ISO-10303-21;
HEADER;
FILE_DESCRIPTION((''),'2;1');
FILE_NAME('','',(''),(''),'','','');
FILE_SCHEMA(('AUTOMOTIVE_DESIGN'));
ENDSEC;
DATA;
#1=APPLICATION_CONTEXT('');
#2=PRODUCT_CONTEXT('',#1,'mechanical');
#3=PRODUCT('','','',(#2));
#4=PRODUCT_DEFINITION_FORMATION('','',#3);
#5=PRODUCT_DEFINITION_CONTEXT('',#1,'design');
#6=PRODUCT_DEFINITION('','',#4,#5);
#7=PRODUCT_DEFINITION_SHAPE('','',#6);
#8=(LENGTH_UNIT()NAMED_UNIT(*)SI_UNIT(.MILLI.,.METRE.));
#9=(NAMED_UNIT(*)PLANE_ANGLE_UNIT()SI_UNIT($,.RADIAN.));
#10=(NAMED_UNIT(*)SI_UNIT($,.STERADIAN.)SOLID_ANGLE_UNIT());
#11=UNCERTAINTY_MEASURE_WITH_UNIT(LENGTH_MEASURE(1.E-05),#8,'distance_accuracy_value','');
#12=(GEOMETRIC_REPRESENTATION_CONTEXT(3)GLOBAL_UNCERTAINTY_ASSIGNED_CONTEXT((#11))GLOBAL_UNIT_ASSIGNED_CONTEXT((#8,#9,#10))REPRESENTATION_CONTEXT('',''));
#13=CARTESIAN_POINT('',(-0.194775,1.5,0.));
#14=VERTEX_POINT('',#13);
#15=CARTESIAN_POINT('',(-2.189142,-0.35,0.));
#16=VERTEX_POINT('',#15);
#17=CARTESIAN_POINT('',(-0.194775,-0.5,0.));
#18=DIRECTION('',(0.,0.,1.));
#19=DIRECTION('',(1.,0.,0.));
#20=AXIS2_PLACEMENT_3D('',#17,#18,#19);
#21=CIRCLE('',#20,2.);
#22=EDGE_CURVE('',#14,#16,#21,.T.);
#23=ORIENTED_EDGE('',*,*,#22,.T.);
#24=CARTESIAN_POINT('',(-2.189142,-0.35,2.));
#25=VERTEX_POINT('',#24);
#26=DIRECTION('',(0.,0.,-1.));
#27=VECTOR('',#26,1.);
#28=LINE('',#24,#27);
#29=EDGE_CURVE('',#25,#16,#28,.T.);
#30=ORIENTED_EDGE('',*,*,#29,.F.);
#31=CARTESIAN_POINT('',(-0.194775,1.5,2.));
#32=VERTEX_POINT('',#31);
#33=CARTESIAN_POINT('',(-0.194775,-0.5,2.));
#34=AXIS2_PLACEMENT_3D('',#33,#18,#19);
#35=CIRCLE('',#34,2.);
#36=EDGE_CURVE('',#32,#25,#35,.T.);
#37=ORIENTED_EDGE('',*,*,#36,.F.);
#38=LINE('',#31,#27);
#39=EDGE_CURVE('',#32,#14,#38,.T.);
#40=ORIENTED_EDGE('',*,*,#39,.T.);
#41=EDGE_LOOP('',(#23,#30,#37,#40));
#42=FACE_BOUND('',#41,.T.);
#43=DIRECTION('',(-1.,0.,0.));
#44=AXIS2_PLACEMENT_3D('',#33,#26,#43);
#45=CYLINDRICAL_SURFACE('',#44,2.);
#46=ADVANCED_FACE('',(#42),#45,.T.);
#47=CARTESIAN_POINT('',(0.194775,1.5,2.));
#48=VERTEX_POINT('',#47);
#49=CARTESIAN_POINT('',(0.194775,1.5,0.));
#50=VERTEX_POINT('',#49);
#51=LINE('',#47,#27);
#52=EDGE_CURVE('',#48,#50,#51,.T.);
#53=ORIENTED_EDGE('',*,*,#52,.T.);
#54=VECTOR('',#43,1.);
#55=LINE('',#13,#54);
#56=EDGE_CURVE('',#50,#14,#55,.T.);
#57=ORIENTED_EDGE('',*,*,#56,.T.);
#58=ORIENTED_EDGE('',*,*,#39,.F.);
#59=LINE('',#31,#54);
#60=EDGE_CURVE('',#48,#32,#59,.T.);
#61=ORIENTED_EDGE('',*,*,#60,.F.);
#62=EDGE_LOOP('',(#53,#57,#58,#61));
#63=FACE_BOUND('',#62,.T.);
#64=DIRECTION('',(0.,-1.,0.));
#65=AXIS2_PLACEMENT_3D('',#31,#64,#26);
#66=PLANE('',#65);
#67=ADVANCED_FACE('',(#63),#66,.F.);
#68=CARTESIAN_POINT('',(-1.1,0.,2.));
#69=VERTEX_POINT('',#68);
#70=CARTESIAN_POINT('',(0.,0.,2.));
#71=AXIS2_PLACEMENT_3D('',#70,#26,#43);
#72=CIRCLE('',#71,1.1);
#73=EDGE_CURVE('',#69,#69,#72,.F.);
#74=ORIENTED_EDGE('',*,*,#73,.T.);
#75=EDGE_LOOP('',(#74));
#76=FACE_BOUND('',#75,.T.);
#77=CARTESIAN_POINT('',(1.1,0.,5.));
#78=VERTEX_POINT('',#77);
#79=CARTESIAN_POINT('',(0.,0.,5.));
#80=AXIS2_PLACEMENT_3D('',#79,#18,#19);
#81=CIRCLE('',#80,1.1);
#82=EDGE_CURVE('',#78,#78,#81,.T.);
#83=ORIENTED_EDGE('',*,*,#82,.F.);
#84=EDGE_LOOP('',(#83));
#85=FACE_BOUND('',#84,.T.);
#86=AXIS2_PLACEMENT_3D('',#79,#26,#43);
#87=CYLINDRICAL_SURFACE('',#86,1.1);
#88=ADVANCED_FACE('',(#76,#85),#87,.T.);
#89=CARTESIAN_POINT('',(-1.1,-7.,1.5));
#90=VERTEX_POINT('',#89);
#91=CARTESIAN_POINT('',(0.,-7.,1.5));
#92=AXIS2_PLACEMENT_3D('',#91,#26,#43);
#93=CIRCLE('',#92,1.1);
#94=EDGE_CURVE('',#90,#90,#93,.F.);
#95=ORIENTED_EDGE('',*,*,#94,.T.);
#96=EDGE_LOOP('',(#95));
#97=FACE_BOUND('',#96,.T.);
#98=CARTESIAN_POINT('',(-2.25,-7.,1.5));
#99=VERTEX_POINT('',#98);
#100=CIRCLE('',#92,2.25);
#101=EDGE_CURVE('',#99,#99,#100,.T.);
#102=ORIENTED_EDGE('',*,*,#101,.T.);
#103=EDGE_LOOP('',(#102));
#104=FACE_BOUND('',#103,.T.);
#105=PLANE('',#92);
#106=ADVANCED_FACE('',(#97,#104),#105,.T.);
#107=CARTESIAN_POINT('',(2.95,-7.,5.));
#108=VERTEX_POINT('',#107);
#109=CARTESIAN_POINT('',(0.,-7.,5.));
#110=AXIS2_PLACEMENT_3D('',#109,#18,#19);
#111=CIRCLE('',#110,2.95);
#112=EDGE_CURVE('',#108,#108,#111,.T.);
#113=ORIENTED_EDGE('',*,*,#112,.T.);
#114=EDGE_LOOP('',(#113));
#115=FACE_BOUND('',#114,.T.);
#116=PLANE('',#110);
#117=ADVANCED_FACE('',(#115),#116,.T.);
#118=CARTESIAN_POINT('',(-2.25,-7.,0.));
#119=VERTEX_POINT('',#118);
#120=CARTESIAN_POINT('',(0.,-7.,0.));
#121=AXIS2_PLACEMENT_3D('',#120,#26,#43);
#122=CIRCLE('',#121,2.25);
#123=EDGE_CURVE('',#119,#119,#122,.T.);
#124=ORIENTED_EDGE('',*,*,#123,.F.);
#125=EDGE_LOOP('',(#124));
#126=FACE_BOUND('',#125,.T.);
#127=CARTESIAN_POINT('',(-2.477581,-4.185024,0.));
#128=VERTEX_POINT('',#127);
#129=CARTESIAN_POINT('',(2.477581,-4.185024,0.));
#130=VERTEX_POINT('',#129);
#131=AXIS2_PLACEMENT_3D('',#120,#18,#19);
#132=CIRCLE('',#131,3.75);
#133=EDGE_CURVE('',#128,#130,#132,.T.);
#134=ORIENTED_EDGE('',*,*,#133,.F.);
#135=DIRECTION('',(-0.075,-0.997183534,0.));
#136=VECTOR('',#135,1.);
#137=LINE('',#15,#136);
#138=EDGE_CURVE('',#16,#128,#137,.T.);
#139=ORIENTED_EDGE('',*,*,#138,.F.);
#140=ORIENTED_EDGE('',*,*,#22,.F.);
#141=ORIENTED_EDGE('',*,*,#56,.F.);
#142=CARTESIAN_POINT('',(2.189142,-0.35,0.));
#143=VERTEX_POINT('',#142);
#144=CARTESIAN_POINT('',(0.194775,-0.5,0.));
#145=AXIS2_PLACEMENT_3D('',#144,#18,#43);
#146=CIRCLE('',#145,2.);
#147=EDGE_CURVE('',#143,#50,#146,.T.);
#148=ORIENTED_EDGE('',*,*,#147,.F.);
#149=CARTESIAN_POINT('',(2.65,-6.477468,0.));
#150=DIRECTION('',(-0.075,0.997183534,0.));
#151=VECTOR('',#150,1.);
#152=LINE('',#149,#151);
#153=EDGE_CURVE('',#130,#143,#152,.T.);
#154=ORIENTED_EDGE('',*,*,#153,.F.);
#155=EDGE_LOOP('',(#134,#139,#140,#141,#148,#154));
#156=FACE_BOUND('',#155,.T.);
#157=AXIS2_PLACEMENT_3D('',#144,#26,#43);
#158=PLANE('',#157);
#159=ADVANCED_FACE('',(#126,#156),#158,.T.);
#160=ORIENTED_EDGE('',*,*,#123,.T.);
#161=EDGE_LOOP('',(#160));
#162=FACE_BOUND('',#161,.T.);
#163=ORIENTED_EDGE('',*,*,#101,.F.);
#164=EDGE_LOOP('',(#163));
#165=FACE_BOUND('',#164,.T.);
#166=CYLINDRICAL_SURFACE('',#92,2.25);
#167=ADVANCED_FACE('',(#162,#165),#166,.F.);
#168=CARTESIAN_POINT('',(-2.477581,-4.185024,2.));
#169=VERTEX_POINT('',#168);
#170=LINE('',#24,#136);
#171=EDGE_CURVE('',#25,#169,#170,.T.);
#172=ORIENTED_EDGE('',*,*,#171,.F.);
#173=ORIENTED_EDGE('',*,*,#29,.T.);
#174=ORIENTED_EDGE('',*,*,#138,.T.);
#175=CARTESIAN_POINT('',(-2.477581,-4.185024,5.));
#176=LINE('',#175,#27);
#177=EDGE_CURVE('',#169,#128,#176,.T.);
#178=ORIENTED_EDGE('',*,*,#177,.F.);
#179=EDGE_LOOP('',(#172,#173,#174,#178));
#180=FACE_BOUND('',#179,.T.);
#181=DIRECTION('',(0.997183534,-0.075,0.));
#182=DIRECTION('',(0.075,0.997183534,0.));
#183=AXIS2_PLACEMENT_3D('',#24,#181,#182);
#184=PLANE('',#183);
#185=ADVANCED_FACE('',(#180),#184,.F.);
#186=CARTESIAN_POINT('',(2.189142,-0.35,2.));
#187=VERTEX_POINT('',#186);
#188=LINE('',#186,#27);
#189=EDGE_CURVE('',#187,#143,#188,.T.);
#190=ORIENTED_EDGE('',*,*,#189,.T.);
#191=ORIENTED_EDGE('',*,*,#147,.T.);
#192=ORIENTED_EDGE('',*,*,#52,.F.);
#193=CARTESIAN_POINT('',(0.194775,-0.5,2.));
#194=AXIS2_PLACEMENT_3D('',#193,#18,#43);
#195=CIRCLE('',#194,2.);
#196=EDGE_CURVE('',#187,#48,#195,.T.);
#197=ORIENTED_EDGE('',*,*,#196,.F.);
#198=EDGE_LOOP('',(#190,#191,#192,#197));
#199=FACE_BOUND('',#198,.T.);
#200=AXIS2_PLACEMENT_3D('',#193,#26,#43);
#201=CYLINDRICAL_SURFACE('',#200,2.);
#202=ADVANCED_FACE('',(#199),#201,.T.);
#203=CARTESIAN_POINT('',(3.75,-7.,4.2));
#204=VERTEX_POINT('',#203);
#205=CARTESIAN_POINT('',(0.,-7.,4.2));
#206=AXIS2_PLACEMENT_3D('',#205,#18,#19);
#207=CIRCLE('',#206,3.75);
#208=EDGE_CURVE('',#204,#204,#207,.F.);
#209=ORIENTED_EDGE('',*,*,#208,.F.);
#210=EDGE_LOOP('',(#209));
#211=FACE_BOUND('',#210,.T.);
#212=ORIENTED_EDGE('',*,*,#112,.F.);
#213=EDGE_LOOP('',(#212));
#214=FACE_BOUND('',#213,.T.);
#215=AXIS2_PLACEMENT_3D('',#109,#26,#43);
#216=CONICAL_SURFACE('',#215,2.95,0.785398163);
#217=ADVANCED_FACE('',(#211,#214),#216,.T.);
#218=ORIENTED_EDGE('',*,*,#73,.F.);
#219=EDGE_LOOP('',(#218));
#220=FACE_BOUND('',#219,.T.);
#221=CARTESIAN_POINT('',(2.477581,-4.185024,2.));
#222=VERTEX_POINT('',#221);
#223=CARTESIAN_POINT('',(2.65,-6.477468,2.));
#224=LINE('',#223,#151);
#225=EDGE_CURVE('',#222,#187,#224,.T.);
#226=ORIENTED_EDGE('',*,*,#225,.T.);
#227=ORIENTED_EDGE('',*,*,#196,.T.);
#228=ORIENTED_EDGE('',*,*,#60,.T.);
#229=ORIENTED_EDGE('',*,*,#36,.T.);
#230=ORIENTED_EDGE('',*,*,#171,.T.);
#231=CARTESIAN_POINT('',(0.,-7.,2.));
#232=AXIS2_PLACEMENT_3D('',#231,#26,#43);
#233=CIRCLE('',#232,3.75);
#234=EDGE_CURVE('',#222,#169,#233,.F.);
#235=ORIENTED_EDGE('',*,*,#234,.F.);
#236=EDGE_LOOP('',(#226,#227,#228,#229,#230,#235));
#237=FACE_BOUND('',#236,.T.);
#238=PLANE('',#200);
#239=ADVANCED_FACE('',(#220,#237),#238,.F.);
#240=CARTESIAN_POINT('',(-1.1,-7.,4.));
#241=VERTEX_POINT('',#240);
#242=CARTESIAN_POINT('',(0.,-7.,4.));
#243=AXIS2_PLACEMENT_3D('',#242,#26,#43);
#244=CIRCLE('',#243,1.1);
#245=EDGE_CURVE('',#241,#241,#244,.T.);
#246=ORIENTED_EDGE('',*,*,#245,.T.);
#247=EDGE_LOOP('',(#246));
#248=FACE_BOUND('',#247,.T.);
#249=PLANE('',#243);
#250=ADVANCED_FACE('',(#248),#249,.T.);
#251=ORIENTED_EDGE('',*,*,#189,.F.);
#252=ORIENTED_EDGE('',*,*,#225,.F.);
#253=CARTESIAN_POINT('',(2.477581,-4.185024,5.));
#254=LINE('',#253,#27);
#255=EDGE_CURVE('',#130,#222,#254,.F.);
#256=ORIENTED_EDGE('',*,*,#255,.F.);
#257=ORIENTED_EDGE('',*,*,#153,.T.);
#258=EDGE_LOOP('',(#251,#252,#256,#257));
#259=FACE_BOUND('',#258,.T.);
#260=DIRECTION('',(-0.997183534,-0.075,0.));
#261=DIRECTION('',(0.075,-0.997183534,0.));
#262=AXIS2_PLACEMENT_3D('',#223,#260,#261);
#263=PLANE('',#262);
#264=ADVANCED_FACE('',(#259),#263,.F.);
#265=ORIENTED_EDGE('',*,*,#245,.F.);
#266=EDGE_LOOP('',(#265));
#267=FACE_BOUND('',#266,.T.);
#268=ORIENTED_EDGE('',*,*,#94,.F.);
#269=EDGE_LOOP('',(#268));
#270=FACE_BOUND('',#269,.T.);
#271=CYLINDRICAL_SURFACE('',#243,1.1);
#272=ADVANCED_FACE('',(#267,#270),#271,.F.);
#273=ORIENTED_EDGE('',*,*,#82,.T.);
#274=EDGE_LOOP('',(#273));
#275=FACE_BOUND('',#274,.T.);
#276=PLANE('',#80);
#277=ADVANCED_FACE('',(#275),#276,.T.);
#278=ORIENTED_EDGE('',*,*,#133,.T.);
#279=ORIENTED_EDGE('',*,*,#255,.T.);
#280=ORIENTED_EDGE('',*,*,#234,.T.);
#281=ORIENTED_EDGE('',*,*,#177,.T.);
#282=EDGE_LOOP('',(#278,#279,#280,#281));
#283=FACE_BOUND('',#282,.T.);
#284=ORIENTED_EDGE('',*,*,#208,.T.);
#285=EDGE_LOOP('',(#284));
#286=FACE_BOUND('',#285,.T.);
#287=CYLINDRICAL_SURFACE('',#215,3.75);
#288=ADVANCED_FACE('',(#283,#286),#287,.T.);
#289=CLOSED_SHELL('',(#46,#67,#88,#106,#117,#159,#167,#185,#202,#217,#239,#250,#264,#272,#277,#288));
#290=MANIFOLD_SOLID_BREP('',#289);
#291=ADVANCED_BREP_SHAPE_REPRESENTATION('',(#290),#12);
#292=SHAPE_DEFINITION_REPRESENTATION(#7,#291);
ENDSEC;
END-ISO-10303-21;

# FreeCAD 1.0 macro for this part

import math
import FreeCAD as App
import Part
import Sketcher


def edges_at(feature, points):
    """Names of the edges that pass closest to the given points."""
    edges = feature.Shape.Edges
    near = lambda p: min(range(len(edges)), key=lambda i: edges[i].distToShape(Part.Vertex(*p))[0])
    return sorted({f"Edge{near(p) + 1}" for p in points})

doc = App.newDocument("Part")
body = doc.addObject("PartDesign::Body", "Body")

# Sketch on XY plane
sketch1 = doc.addObject("Sketcher::SketchObject", "Sketch")
body.addObject(sketch1)
sketch1.AttachmentSupport = (doc.XY_Plane, [""])
sketch1.MapMode = "FlatFace"
sketch1.addGeometry(Part.LineSegment(App.Vector(-2.19, -0.35, 0), App.Vector(-2.65, -6.48, 0)), False)
sketch1.addGeometry(Part.LineSegment(App.Vector(-2.65, -6.48, 0), App.Vector(2.65, -6.48, 0)), False)
sketch1.addGeometry(Part.LineSegment(App.Vector(2.65, -6.48, 0), App.Vector(2.19, -0.35, 0)), False)
sketch1.addGeometry(Part.ArcOfCircle(Part.Circle(App.Vector(0.19, -0.5, 0), App.Vector(0, 0, 1), 2), math.radians(4), math.radians(90)), False)
sketch1.addGeometry(Part.LineSegment(App.Vector(0.19, 1.5, 0), App.Vector(-0.19, 1.5, 0)), False)
sketch1.addGeometry(Part.ArcOfCircle(Part.Circle(App.Vector(-0.19, -0.5, 0), App.Vector(0, 0, 1), 2), math.radians(90), math.radians(176)), False)
sketch1.addConstraint(Sketcher.Constraint("Coincident", 0, 2, 1, 1))
sketch1.addConstraint(Sketcher.Constraint("Coincident", 1, 2, 2, 1))
sketch1.addConstraint(Sketcher.Constraint("Tangent", 2, 2, 3, 1))
sketch1.addConstraint(Sketcher.Constraint("Tangent", 3, 2, 4, 1))
sketch1.addConstraint(Sketcher.Constraint("Tangent", 4, 2, 5, 1))
sketch1.addConstraint(Sketcher.Constraint("Tangent", 5, 2, 0, 1))
sketch1.addConstraint(Sketcher.Constraint("Horizontal", 1))
sketch1.addConstraint(Sketcher.Constraint("Horizontal", 4))
sketch1.addConstraint(Sketcher.Constraint("Equal", 3, 5))
sketch1.addConstraint(Sketcher.Constraint("Symmetric", 2, 2, 5, 2, -2))
sketch1.addConstraint(Sketcher.Constraint("Radius", 3, 2.0))
sketch1.addConstraint(Sketcher.Constraint("DistanceX", 1, 1, 1, 2, 5.3))
sketch1.addConstraint(Sketcher.Constraint("DistanceY", 3, 3, -1, 1, 0.5))
sketch1.addConstraint(Sketcher.Constraint("DistanceY", 2, 2, -1, 1, 0.35))
sketch1.addConstraint(Sketcher.Constraint("DistanceX", 4, 2, 4, 1, 0.38955))
pad1 = doc.addObject("PartDesign::Pad", "Pad")
body.addObject(pad1)
pad1.Profile = sketch1
pad1.Length = 2

# Sketch on XY plane
sketch2 = doc.addObject("Sketcher::SketchObject", "Sketch001")
body.addObject(sketch2)
sketch2.AttachmentSupport = (doc.XY_Plane, [""])
sketch2.MapMode = "FlatFace"
sketch2.AttachmentOffset = App.Placement(App.Vector(0, 0, 2), App.Rotation())
sketch2.addGeometry(Part.Circle(App.Vector(0, 0, 0), App.Vector(0, 0, 1), 1.1), False)
sketch2.addConstraint(Sketcher.Constraint("Coincident", 0, 3, -1, 1))
sketch2.addConstraint(Sketcher.Constraint("Diameter", 0, 2.2))
pad2 = doc.addObject("PartDesign::Pad", "Pad001")
body.addObject(pad2)
pad2.Profile = sketch2
pad2.Length = 3

# Sketch on XY plane
sketch3 = doc.addObject("Sketcher::SketchObject", "Sketch002")
body.addObject(sketch3)
sketch3.AttachmentSupport = (doc.XY_Plane, [""])
sketch3.MapMode = "FlatFace"
sketch3.addGeometry(Part.Circle(App.Vector(0, -7, 0), App.Vector(0, 0, 1), 3.8), False)
sketch3.addConstraint(Sketcher.Constraint("PointOnObject", 0, 3, -2))
sketch3.addConstraint(Sketcher.Constraint("Diameter", 0, 7.5))
sketch3.addConstraint(Sketcher.Constraint("DistanceY", 0, 3, -1, 1, 7.0))
pad3 = doc.addObject("PartDesign::Pad", "Pad002")
body.addObject(pad3)
pad3.Profile = sketch3
pad3.Length = 5
doc.recompute()

chamfer = doc.addObject("PartDesign::Chamfer", "Chamfer")
body.addObject(chamfer)
chamfer.Base = (pad3, edges_at(pad3, [(2.478, -9.815, 5)]))
chamfer.Size = 0.8

# Sketch on XY plane
sketch4 = doc.addObject("Sketcher::SketchObject", "Sketch003")
body.addObject(sketch4)
sketch4.AttachmentSupport = (doc.XY_Plane, [""])
sketch4.MapMode = "FlatFace"
sketch4.addGeometry(Part.Circle(App.Vector(0, -7, 0), App.Vector(0, 0, 1), 1.1), False)
sketch4.addConstraint(Sketcher.Constraint("PointOnObject", 0, 3, -2))
sketch4.addConstraint(Sketcher.Constraint("Diameter", 0, 2.2))
sketch4.addConstraint(Sketcher.Constraint("DistanceY", 0, 3, -1, 1, 7.0))
pocket1 = doc.addObject("PartDesign::Pocket", "Pocket")
body.addObject(pocket1)
pocket1.Profile = sketch4
pocket1.Length = 4
pocket1.Reversed = True

# Sketch on XY plane
sketch5 = doc.addObject("Sketcher::SketchObject", "Sketch004")
body.addObject(sketch5)
sketch5.AttachmentSupport = (doc.XY_Plane, [""])
sketch5.MapMode = "FlatFace"
sketch5.addGeometry(Part.Circle(App.Vector(0, -7, 0), App.Vector(0, 0, 1), 2.2), False)
sketch5.addConstraint(Sketcher.Constraint("PointOnObject", 0, 3, -2))
sketch5.addConstraint(Sketcher.Constraint("Diameter", 0, 4.5))
sketch5.addConstraint(Sketcher.Constraint("DistanceY", 0, 3, -1, 1, 7.0))
pocket2 = doc.addObject("PartDesign::Pocket", "Pocket001")
body.addObject(pocket2)
pocket2.Profile = sketch5
pocket2.Length = 1.5
pocket2.Reversed = True

doc.recompute()
